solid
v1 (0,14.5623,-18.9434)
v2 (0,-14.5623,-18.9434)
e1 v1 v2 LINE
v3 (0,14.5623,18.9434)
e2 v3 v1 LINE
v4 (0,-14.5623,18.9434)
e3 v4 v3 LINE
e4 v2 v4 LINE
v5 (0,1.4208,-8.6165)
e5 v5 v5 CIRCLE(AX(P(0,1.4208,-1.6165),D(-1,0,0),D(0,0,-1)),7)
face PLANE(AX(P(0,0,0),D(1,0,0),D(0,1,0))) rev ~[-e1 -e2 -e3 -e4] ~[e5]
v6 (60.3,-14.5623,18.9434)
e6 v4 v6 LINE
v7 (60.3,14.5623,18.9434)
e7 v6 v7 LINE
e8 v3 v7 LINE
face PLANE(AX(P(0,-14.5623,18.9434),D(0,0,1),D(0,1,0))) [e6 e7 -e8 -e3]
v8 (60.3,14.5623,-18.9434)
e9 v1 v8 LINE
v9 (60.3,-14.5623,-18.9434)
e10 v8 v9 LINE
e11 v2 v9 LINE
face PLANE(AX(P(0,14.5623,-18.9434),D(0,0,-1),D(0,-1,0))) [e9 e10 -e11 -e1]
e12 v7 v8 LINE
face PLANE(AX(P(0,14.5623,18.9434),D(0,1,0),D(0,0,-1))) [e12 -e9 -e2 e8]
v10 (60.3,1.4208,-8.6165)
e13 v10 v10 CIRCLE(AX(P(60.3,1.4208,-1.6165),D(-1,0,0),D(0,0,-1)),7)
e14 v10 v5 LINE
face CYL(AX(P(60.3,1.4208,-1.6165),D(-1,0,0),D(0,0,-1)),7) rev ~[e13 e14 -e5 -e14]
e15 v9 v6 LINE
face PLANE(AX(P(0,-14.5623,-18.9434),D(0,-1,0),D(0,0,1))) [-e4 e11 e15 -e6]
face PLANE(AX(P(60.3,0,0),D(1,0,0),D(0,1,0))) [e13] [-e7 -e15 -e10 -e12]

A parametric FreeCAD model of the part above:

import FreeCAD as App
import Part
import Sketcher

V = App.Vector
Q = App.Units.Quantity

doc = App.newDocument("Part")
body = doc.addObject("PartDesign::Body", "Body")

# Sketch on YZ plane
sketch1 = body.newObject("Sketcher::SketchObject", "Sketch")
sketch1.AttachmentSupport = (doc.getObject("YZ_Plane"), [""])
sketch1.MapMode = "FlatFace"
sketch1.addGeometry([
    Part.LineSegment(V(15, 19, 0), V(-15, 19, 0)),
    Part.LineSegment(V(-15, 19, 0), V(-15, -19, 0)),
    Part.LineSegment(V(-15, -19, 0), V(15, -19, 0)),
    Part.LineSegment(V(15, -19, 0), V(15, 19, 0)),
], False)
sketch1.addConstraint([
    Sketcher.Constraint("Coincident", 0, 2, 1, 1),
    Sketcher.Constraint("Coincident", 1, 2, 2, 1),
    Sketcher.Constraint("Coincident", 2, 2, 3, 1),
    Sketcher.Constraint("Coincident", 3, 2, 0, 1),
    Sketcher.Constraint("Horizontal", 0),
    Sketcher.Constraint("Vertical", 1),
    Sketcher.Constraint("Horizontal", 2),
    Sketcher.Constraint("Vertical", 3),
    Sketcher.Constraint("Symmetric", 0, 2, 2, 2, -1, 1),
    Sketcher.Constraint("DistanceX", 0, 2, 0, 1, Q("29.1246 mm")),
    Sketcher.Constraint("DistanceY", 1, 2, 1, 1, Q("37.8868 mm")),
])
pad1 = body.newObject("PartDesign::Pad", "Pad")
pad1.Profile = sketch1
pad1.Length = 60.3

# Sketch on YZ plane
sketch2 = body.newObject("Sketcher::SketchObject", "Sketch001")
sketch2.AttachmentSupport = (doc.getObject("YZ_Plane"), [""])
sketch2.MapMode = "FlatFace"
sketch2.AttachmentOffset = App.Placement(V(0, 0, 60.3), App.Rotation())
sketch2.addGeometry(Part.Circle(V(1, -2, 0), V(0, 0, 1), 7), False)
sketch2.addConstraint([
    Sketcher.Constraint("Diameter", 0, Q("14 mm")),
    Sketcher.Constraint("DistanceX", -1, 1, 0, 3, Q("1.4208 mm")),
    Sketcher.Constraint("DistanceY", 0, 3, -1, 1, Q("1.6165 mm")),
])
doc.recompute()
hole = body.newObject("PartDesign::Hole", "Hole")
hole.Profile = sketch2
hole.ThreadType = "None"
hole.Diameter = 14
hole.DepthType = "ThroughAll"

doc.recompute()
